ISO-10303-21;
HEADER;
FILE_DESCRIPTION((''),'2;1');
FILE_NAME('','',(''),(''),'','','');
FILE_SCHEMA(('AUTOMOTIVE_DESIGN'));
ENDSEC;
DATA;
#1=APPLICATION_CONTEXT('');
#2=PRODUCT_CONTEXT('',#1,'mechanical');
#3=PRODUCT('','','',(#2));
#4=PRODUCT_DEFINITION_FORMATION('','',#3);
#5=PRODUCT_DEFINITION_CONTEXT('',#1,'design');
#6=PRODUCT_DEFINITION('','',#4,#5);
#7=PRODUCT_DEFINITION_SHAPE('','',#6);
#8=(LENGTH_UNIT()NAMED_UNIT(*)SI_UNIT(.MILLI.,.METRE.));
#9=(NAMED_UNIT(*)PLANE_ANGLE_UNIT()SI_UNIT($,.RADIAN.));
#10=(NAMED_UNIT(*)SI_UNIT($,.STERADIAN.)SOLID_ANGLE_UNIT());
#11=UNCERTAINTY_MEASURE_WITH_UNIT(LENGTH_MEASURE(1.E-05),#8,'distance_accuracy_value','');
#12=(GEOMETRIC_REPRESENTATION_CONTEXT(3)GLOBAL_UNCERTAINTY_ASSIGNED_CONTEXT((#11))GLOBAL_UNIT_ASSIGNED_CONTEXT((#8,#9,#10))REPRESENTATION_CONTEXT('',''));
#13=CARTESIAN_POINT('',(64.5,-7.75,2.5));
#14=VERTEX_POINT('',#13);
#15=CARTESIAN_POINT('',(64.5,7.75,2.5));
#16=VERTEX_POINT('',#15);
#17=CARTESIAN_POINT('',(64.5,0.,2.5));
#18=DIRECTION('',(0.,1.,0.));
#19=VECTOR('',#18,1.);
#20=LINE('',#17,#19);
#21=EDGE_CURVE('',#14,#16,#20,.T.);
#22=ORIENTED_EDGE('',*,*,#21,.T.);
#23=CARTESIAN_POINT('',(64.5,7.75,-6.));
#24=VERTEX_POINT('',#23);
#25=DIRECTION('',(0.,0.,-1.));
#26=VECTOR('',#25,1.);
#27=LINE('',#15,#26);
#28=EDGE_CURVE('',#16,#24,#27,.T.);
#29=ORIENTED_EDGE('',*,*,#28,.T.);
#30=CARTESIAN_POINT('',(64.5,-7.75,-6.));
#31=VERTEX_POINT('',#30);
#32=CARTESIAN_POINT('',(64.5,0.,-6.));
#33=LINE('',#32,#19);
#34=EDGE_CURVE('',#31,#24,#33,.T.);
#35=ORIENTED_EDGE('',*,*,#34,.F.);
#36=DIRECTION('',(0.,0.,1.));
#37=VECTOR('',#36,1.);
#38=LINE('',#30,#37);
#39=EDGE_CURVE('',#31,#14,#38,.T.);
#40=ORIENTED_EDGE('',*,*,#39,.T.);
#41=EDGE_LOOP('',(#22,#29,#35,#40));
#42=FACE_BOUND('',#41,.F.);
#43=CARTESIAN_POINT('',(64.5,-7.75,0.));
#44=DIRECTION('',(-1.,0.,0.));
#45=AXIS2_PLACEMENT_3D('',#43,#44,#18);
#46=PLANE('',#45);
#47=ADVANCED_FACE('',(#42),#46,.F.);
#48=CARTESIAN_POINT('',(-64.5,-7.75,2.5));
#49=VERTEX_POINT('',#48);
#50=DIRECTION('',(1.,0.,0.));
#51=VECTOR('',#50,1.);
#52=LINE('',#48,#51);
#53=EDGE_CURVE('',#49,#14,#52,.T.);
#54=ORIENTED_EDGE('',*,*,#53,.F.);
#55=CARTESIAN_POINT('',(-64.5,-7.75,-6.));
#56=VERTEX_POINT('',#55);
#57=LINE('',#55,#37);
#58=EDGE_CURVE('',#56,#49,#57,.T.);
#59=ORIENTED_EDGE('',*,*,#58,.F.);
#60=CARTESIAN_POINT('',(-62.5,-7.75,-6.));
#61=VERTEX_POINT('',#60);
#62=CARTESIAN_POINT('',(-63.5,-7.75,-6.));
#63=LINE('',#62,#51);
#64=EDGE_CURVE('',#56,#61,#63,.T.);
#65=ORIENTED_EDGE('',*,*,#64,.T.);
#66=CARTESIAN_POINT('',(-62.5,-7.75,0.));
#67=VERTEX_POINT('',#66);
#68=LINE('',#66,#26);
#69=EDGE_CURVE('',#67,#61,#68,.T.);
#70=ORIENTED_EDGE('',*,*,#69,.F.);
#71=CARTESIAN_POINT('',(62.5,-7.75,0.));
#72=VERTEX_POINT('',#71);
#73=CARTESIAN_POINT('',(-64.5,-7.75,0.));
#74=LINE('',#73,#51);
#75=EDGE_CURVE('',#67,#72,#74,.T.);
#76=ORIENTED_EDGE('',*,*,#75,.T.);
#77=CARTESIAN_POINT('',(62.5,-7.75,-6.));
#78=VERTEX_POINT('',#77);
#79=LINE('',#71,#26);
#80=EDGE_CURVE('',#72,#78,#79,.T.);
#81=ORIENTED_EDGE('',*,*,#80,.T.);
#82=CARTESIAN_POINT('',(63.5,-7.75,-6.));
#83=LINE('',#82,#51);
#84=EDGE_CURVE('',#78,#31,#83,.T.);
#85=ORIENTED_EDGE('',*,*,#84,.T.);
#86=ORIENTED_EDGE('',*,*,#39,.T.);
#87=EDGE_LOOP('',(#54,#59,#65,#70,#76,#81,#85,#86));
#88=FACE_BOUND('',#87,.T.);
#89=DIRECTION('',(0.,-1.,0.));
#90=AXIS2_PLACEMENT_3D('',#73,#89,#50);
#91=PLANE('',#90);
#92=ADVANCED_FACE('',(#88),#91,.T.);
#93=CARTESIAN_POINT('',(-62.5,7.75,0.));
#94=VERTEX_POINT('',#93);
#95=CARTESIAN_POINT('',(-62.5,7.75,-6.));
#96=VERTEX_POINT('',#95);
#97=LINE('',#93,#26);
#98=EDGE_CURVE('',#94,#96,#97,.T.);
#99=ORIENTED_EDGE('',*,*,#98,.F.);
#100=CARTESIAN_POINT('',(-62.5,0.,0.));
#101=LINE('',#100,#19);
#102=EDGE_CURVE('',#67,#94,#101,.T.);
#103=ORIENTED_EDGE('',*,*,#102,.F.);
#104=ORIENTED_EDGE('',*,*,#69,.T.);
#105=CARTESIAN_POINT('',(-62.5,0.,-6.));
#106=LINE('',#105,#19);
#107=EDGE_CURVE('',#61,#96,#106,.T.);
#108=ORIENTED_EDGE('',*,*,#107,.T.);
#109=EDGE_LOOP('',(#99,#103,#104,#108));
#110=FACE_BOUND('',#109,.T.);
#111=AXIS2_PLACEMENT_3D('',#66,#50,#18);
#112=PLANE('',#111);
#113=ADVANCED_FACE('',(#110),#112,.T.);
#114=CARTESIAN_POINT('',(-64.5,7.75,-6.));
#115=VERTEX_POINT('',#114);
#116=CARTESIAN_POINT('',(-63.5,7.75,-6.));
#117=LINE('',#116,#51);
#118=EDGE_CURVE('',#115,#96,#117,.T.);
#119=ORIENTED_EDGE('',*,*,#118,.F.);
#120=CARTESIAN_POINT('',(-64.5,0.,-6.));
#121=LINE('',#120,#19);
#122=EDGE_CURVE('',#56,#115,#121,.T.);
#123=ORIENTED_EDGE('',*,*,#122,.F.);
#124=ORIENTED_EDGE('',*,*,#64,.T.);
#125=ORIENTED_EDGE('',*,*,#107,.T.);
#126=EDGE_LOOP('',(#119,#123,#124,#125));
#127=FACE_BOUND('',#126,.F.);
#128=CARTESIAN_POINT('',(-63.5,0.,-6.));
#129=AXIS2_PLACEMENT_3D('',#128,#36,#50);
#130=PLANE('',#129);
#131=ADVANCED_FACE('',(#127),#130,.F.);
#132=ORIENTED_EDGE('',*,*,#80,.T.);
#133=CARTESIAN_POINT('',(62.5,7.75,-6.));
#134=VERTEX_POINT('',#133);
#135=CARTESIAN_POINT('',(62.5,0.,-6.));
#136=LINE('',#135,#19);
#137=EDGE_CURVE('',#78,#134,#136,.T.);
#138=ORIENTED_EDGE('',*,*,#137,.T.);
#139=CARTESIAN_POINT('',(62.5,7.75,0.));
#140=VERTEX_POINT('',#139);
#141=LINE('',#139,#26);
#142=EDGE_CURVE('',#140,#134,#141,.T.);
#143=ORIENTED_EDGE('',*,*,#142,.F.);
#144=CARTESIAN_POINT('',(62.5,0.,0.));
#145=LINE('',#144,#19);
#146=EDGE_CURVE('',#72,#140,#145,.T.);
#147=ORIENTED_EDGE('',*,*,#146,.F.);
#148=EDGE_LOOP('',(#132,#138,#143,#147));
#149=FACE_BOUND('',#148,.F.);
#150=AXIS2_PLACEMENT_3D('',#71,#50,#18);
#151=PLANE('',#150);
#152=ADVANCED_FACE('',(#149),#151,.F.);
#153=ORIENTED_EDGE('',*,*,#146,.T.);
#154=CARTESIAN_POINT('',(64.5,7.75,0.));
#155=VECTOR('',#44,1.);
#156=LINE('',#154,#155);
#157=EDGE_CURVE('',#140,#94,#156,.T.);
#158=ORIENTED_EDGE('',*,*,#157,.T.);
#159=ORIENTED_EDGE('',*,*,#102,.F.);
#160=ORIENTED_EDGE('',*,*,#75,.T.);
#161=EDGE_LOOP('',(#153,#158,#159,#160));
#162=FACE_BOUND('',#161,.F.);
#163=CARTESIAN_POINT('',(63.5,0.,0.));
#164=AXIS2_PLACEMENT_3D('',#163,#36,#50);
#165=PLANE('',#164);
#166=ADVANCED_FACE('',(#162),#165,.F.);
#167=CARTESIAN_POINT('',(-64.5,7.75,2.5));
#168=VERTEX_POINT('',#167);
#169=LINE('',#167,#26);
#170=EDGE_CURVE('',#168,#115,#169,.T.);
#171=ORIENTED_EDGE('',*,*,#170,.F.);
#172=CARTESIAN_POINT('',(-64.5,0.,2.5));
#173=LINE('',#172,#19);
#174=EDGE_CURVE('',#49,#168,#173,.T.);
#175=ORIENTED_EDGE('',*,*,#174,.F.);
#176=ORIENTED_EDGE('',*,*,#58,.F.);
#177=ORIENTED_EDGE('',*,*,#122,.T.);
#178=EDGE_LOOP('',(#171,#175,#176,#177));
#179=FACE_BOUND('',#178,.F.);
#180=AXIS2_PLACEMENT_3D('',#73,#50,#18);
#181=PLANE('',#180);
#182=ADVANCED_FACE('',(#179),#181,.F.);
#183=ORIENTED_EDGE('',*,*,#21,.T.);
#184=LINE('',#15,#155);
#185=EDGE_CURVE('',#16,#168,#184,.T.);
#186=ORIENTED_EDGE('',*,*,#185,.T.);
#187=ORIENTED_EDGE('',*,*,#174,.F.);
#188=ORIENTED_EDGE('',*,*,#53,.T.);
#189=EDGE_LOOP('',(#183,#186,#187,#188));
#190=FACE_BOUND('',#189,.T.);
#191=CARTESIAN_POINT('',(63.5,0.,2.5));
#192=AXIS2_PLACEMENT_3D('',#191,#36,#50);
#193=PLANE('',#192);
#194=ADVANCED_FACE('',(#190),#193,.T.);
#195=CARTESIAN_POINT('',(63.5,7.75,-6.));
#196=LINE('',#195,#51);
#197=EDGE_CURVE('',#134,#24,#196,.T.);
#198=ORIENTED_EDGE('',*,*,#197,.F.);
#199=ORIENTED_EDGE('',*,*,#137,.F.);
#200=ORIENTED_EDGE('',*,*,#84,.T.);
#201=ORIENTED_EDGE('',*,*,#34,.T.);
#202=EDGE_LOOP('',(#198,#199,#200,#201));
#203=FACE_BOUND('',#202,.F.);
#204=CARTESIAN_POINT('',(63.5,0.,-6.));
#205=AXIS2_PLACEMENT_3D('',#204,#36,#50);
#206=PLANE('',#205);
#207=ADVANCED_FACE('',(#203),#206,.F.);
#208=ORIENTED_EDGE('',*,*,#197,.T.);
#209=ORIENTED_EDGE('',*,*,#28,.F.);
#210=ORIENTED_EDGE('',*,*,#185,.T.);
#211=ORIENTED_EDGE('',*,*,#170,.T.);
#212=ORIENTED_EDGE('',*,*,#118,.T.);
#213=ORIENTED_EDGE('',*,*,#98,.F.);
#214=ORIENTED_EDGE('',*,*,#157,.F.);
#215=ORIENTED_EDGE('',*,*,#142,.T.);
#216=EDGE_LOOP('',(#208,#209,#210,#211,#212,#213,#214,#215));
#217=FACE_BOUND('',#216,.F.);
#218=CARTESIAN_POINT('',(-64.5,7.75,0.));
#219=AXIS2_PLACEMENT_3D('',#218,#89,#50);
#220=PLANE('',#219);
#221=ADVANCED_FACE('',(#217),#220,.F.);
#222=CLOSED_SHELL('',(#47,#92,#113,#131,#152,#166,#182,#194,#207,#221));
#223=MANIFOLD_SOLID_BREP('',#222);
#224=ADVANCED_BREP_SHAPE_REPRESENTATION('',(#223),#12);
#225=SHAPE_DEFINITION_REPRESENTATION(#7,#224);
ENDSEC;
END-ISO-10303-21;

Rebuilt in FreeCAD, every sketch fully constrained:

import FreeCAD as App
import Part
import Sketcher


def add_polygon(sketch, points):
    """Adds a closed chain of lines whose ends are joined by coincident constraints."""
    first, n = sketch.GeometryCount, len(points)
    for a, b in zip(points, points[1:] + points[:1]):
        sketch.addGeometry(Part.LineSegment(App.Vector(*a, 0), App.Vector(*b, 0)), False)
    for i in range(n):
        sketch.addConstraint(Sketcher.Constraint("Coincident", first + i, 2, first + (i + 1) % n, 1))

doc = App.newDocument("Part")
body = doc.addObject("PartDesign::Body", "Body")

# Sketch on XY plane
sketch1 = doc.addObject("Sketcher::SketchObject", "Sketch")
body.addObject(sketch1)
sketch1.AttachmentSupport = (doc.XY_Plane, [""])
sketch1.MapMode = "FlatFace"
add_polygon(sketch1, [(64.5, -7.75), (64.5, 7.75), (-64.5, 7.75), (-64.5, -7.75)])  # lines 0-3
sketch1.addConstraint(Sketcher.Constraint("Vertical", 0))
sketch1.addConstraint(Sketcher.Constraint("Horizontal", 1))
sketch1.addConstraint(Sketcher.Constraint("Vertical", 2))
sketch1.addConstraint(Sketcher.Constraint("Horizontal", 3))
sketch1.addConstraint(Sketcher.Constraint("Symmetric", 0, 2, 2, 2, -1, 1))
sketch1.addConstraint(Sketcher.Constraint("DistanceX", 1, 2, 1, 1, 129.0))
sketch1.addConstraint(Sketcher.Constraint("DistanceY", 0, 1, 0, 2, 15.5))
pad1 = doc.addObject("PartDesign::Pad", "Pad")
body.addObject(pad1)
pad1.Profile = sketch1
pad1.Length = 2.5

# Sketch on XY plane
sketch2 = doc.addObject("Sketcher::SketchObject", "Sketch001")
body.addObject(sketch2)
sketch2.AttachmentSupport = (doc.XY_Plane, [""])
sketch2.MapMode = "FlatFace"
add_polygon(sketch2, [(-64.5, 7.75), (-64.5, -7.75), (-62.5, -7.75), (-62.5, 7.75)])  # lines 0-3
add_polygon(sketch2, [(62.5, 7.75), (62.5, -7.75), (64.5, -7.75), (64.5, 7.75)])  # lines 4-7
sketch2.addConstraint(Sketcher.Constraint("Vertical", 0))
sketch2.addConstraint(Sketcher.Constraint("Horizontal", 1))
sketch2.addConstraint(Sketcher.Constraint("Vertical", 2))
sketch2.addConstraint(Sketcher.Constraint("Horizontal", 3))
sketch2.addConstraint(Sketcher.Constraint("Vertical", 4))
sketch2.addConstraint(Sketcher.Constraint("Horizontal", 5))
sketch2.addConstraint(Sketcher.Constraint("Vertical", 6))
sketch2.addConstraint(Sketcher.Constraint("Horizontal", 7))
sketch2.addConstraint(Sketcher.Constraint("Symmetric", 2, 2, 4, 2, -1, 1))
sketch2.addConstraint(Sketcher.Constraint("Symmetric", 0, 2, 6, 2, -1, 1))
sketch2.addConstraint(Sketcher.Constraint("Horizontal", 1, 2, 4, 2))
sketch2.addConstraint(Sketcher.Constraint("DistanceX", 1, 1, 1, 2, 2.0))
sketch2.addConstraint(Sketcher.Constraint("DistanceY", 0, 2, 0, 1, 15.5))
sketch2.addConstraint(Sketcher.Constraint("DistanceX", 1, 2, 4, 2, 125.0))
pad2 = doc.addObject("PartDesign::Pad", "Pad001")
body.addObject(pad2)
pad2.Profile = sketch2
pad2.Length = 6
pad2.Reversed = True

doc.recompute()
